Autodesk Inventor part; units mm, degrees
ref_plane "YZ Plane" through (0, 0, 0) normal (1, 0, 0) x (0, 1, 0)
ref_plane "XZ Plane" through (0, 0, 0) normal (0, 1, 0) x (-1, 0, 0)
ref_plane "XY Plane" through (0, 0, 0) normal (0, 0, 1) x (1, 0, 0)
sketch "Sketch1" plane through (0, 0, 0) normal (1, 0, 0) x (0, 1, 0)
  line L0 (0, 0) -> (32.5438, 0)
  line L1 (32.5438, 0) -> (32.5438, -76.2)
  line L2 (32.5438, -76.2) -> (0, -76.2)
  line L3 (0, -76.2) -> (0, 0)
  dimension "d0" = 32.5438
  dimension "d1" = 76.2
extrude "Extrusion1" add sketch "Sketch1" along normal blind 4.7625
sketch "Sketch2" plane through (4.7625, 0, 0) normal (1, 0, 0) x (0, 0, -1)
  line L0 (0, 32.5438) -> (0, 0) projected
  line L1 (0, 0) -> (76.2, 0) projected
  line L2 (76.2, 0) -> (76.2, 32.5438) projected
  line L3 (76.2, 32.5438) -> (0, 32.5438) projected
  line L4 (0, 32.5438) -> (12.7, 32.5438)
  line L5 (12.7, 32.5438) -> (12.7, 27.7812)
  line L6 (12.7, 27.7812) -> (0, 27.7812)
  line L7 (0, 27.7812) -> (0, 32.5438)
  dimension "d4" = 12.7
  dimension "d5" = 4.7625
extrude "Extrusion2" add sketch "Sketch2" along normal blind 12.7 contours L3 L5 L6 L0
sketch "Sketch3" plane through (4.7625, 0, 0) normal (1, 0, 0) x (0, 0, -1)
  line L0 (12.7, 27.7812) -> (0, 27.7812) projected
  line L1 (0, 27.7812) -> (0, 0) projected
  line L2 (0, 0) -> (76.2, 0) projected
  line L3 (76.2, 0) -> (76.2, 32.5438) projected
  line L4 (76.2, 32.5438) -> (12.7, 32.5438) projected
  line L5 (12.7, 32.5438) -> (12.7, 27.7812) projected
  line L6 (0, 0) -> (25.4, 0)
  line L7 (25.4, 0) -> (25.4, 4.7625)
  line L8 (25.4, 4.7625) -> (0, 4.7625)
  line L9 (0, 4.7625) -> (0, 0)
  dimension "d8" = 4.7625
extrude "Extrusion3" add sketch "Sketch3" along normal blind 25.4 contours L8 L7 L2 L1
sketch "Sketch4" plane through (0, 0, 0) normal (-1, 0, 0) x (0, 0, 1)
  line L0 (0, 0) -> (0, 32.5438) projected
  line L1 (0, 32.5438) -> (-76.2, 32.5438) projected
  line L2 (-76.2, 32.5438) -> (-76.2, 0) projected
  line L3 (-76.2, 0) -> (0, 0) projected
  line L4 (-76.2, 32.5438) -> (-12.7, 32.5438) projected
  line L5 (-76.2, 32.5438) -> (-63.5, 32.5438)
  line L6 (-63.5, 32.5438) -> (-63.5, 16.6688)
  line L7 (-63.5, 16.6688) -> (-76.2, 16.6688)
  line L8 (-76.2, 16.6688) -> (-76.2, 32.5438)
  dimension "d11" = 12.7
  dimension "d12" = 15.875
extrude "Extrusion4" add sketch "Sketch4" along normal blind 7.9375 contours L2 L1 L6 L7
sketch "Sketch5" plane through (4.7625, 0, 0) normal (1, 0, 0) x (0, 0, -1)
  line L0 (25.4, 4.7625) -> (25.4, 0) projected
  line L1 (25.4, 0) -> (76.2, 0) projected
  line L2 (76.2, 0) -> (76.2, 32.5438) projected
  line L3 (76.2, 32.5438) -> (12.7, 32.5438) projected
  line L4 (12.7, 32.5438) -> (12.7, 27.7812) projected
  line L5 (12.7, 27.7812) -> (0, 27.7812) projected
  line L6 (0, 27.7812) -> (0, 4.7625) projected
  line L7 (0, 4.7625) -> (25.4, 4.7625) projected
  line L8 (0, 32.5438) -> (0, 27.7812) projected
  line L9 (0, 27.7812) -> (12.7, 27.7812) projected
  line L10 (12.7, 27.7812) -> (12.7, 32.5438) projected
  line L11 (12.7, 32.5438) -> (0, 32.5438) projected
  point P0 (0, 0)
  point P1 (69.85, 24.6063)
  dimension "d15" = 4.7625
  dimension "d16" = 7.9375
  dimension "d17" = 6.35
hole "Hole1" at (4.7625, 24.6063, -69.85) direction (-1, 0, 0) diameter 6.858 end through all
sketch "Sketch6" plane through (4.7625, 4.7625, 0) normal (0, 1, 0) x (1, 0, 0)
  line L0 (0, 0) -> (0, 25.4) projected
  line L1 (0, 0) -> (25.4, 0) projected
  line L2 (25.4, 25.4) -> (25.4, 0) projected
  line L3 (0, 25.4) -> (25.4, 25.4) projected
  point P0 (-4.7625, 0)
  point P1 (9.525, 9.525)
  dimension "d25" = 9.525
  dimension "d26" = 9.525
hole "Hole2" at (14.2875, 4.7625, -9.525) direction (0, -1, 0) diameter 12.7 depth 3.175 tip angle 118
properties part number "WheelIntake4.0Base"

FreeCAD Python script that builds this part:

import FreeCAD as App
import Part
import Sketcher
Q = App.Units.Quantity

doc = App.newDocument("Part")
body = doc.addObject("PartDesign::Body", "Body")

# Sketch on YZ plane
sketch1 = body.newObject("Sketcher::SketchObject", "Sketch")
sketch1.AttachmentSupport = (doc.getObject("YZ_Plane"), [""])
sketch1.MapMode = "FlatFace"
sketch1.addGeometry([
    Part.LineSegment(App.Vector(32.5438, 0, 0), App.Vector(0, 0, 0)),
    Part.LineSegment(App.Vector(0, 0, 0), App.Vector(0, -76.2, 0)),
    Part.LineSegment(App.Vector(0, -76.2, 0), App.Vector(32.5438, -76.2, 0)),
    Part.LineSegment(App.Vector(32.5438, -76.2, 0), App.Vector(32.5438, 0, 0)),
], False)
sketch1.addConstraint([
    Sketcher.Constraint("Coincident", 0, 2, 1, 1),
    Sketcher.Constraint("Coincident", 1, 2, 2, 1),
    Sketcher.Constraint("Coincident", 2, 2, 3, 1),
    Sketcher.Constraint("Coincident", 3, 2, 0, 1),
    Sketcher.Constraint("Horizontal", 0),
    Sketcher.Constraint("Vertical", 1),
    Sketcher.Constraint("Horizontal", 2),
    Sketcher.Constraint("Vertical", 3),
    Sketcher.Constraint("Coincident", 0, 2, -1, 1),
    Sketcher.Constraint("DistanceY", 1, 2, 1, 1, Q("3 in")),
    Sketcher.Constraint("DistanceX", 0, 2, 0, 1, Q("1.281252 in")),
])
pad1 = body.newObject("PartDesign::Pad", "Pad")
pad1.Profile = sketch1
pad1.Length = Q("0.1875 in")

# Sketch on YZ plane
sketch2 = body.newObject("Sketcher::SketchObject", "Sketch001")
sketch2.AttachmentSupport = (doc.getObject("YZ_Plane"), [""])
sketch2.MapMode = "FlatFace"
sketch2.AttachmentOffset = App.Placement(App.Vector(0, 0, 0.1875 * 25.4), App.Rotation())
sketch2.addGeometry([
    Part.LineSegment(App.Vector(32.5438, -12.7, 0), App.Vector(32.5438, 0, 0)),
    Part.LineSegment(App.Vector(32.5438, 0, 0), App.Vector(27.7812, 0, 0)),
    Part.LineSegment(App.Vector(27.7812, 0, 0), App.Vector(27.7812, -12.7, 0)),
    Part.LineSegment(App.Vector(27.7812, -12.7, 0), App.Vector(32.5438, -12.7, 0)),
], False)
sketch2.addConstraint([
    Sketcher.Constraint("Coincident", 0, 2, 1, 1),
    Sketcher.Constraint("Coincident", 1, 2, 2, 1),
    Sketcher.Constraint("Coincident", 2, 2, 3, 1),
    Sketcher.Constraint("Coincident", 3, 2, 0, 1),
    Sketcher.Constraint("Vertical", 0),
    Sketcher.Constraint("Horizontal", 1),
    Sketcher.Constraint("Vertical", 2),
    Sketcher.Constraint("Horizontal", 3),
    Sketcher.Constraint("PointOnObject", 0, 2, -1),
    Sketcher.Constraint("DistanceY", 0, 1, 0, 2, Q("0.5 in")),
    Sketcher.Constraint("DistanceX", 1, 2, 1, 1, Q("0.1875 in")),
    Sketcher.Constraint("DistanceX", -1, 1, 0, 2, Q("1.281252 in")),
])
pad2 = body.newObject("PartDesign::Pad", "Pad001")
pad2.Profile = sketch2
pad2.Length = Q("0.5 in")

# Sketch on YZ plane
sketch3 = body.newObject("Sketcher::SketchObject", "Sketch002")
sketch3.AttachmentSupport = (doc.getObject("YZ_Plane"), [""])
sketch3.MapMode = "FlatFace"
sketch3.AttachmentOffset = App.Placement(App.Vector(0, 0, 0.1875 * 25.4), App.Rotation())
sketch3.addGeometry([
    Part.LineSegment(App.Vector(4.7625, -25.4, 0), App.Vector(4.7625, 0, 0)),
    Part.LineSegment(App.Vector(4.7625, 0, 0), App.Vector(0, 0, 0)),
    Part.LineSegment(App.Vector(0, 0, 0), App.Vector(0, -25.4, 0)),
    Part.LineSegment(App.Vector(0, -25.4, 0), App.Vector(4.7625, -25.4, 0)),
], False)
sketch3.addConstraint([
    Sketcher.Constraint("Coincident", 0, 2, 1, 1),
    Sketcher.Constraint("Coincident", 1, 2, 2, 1),
    Sketcher.Constraint("Coincident", 2, 2, 3, 1),
    Sketcher.Constraint("Coincident", 3, 2, 0, 1),
    Sketcher.Constraint("Vertical", 0),
    Sketcher.Constraint("Horizontal", 1),
    Sketcher.Constraint("Vertical", 2),
    Sketcher.Constraint("Horizontal", 3),
    Sketcher.Constraint("Coincident", 1, 2, -1, 1),
    Sketcher.Constraint("DistanceX", 1, 2, 1, 1, Q("0.1875 in")),
    Sketcher.Constraint("DistanceY", 0, 1, 0, 2, Q("1 in")),
])
pad3 = body.newObject("PartDesign::Pad", "Pad002")
pad3.Profile = sketch3
pad3.Length = Q("1 in")

# Sketch on YZ plane
sketch4 = body.newObject("Sketcher::SketchObject", "Sketch003")
sketch4.AttachmentSupport = (doc.getObject("YZ_Plane"), [""])
sketch4.MapMode = "FlatFace"
sketch4.addGeometry([
    Part.LineSegment(App.Vector(32.5438, -76.2, 0), App.Vector(16.6688, -76.2, 0)),
    Part.LineSegment(App.Vector(16.6688, -76.2, 0), App.Vector(16.6688, -63.5, 0)),
    Part.LineSegment(App.Vector(16.6688, -63.5, 0), App.Vector(32.5438, -63.5, 0)),
    Part.LineSegment(App.Vector(32.5438, -63.5, 0), App.Vector(32.5438, -76.2, 0)),
], False)
sketch4.addConstraint([
    Sketcher.Constraint("Coincident", 0, 2, 1, 1),
    Sketcher.Constraint("Coincident", 1, 2, 2, 1),
    Sketcher.Constraint("Coincident", 2, 2, 3, 1),
    Sketcher.Constraint("Coincident", 3, 2, 0, 1),
    Sketcher.Constraint("Horizontal", 0),
    Sketcher.Constraint("Vertical", 1),
    Sketcher.Constraint("Horizontal", 2),
    Sketcher.Constraint("Vertical", 3),
    Sketcher.Constraint("DistanceY", 1, 1, 1, 2, Q("0.5 in")),
    Sketcher.Constraint("DistanceX", 0, 2, 0, 1, Q("0.625 in")),
    Sketcher.Constraint("DistanceY", 0, 2, -1, 1, Q("3 in")),
    Sketcher.Constraint("DistanceX", -1, 1, 0, 2, Q("0.656252 in")),
])
pad4 = body.newObject("PartDesign::Pad", "Pad003")
pad4.Profile = sketch4
pad4.Length = Q("0.3125 in")
pad4.Reversed = True

# Sketch on YZ plane
sketch5 = body.newObject("Sketcher::SketchObject", "Sketch004")
sketch5.AttachmentSupport = (doc.getObject("YZ_Plane"), [""])
sketch5.MapMode = "FlatFace"
sketch5.AttachmentOffset = App.Placement(App.Vector(0, 0, 0.1875 * 25.4), App.Rotation())
sketch5.addGeometry(Part.Circle(App.Vector(24.6063, -69.85, 0), App.Vector(0, 0, 1), 3.429), False)
sketch5.addConstraint([
    Sketcher.Constraint("Diameter", 0, Q("0.27 in")),
    Sketcher.Constraint("DistanceY", 0, 3, -1, 1, Q("2.75 in")),
    Sketcher.Constraint("DistanceX", -1, 1, 0, 3, Q("0.968752 in")),
])
doc.recompute()
hole = body.newObject("PartDesign::Hole", "Hole")
hole.Profile = sketch5
hole.ThreadType = "None"
hole.Diameter = Q("0.27 in")
hole.DepthType = "ThroughAll"

# Sketch on XZ plane
sketch6 = body.newObject("Sketcher::SketchObject", "Sketch005")
sketch6.AttachmentSupport = (doc.getObject("XZ_Plane"), [""])
sketch6.MapMode = "FlatFace"
sketch6.AttachmentOffset = App.Placement(App.Vector(0, 0, -0.1875 * 25.4), App.Rotation())
sketch6.addGeometry(Part.Circle(App.Vector(14.2875, -9.525, 0), App.Vector(0, 0, 1), 6.35), False)
sketch6.addConstraint([
    Sketcher.Constraint("Diameter", 0, Q("0.5 in")),
    Sketcher.Constraint("DistanceX", -1, 1, 0, 3, Q("0.5625 in")),
    Sketcher.Constraint("DistanceY", 0, 3, -1, 1, Q("0.375 in")),
])
doc.recompute()
hole2 = body.newObject("PartDesign::Hole", "Hole001")
hole2.Profile = sketch6
hole2.ThreadType = "None"
hole2.Diameter = Q("0.5 in")
hole2.DepthType = "Dimension"
hole2.Depth = Q("0.125 in")
hole2.DrillPoint = "Angled"
hole2.DrillPointAngle = 118
hole2.Reversed = True

doc.recompute()
